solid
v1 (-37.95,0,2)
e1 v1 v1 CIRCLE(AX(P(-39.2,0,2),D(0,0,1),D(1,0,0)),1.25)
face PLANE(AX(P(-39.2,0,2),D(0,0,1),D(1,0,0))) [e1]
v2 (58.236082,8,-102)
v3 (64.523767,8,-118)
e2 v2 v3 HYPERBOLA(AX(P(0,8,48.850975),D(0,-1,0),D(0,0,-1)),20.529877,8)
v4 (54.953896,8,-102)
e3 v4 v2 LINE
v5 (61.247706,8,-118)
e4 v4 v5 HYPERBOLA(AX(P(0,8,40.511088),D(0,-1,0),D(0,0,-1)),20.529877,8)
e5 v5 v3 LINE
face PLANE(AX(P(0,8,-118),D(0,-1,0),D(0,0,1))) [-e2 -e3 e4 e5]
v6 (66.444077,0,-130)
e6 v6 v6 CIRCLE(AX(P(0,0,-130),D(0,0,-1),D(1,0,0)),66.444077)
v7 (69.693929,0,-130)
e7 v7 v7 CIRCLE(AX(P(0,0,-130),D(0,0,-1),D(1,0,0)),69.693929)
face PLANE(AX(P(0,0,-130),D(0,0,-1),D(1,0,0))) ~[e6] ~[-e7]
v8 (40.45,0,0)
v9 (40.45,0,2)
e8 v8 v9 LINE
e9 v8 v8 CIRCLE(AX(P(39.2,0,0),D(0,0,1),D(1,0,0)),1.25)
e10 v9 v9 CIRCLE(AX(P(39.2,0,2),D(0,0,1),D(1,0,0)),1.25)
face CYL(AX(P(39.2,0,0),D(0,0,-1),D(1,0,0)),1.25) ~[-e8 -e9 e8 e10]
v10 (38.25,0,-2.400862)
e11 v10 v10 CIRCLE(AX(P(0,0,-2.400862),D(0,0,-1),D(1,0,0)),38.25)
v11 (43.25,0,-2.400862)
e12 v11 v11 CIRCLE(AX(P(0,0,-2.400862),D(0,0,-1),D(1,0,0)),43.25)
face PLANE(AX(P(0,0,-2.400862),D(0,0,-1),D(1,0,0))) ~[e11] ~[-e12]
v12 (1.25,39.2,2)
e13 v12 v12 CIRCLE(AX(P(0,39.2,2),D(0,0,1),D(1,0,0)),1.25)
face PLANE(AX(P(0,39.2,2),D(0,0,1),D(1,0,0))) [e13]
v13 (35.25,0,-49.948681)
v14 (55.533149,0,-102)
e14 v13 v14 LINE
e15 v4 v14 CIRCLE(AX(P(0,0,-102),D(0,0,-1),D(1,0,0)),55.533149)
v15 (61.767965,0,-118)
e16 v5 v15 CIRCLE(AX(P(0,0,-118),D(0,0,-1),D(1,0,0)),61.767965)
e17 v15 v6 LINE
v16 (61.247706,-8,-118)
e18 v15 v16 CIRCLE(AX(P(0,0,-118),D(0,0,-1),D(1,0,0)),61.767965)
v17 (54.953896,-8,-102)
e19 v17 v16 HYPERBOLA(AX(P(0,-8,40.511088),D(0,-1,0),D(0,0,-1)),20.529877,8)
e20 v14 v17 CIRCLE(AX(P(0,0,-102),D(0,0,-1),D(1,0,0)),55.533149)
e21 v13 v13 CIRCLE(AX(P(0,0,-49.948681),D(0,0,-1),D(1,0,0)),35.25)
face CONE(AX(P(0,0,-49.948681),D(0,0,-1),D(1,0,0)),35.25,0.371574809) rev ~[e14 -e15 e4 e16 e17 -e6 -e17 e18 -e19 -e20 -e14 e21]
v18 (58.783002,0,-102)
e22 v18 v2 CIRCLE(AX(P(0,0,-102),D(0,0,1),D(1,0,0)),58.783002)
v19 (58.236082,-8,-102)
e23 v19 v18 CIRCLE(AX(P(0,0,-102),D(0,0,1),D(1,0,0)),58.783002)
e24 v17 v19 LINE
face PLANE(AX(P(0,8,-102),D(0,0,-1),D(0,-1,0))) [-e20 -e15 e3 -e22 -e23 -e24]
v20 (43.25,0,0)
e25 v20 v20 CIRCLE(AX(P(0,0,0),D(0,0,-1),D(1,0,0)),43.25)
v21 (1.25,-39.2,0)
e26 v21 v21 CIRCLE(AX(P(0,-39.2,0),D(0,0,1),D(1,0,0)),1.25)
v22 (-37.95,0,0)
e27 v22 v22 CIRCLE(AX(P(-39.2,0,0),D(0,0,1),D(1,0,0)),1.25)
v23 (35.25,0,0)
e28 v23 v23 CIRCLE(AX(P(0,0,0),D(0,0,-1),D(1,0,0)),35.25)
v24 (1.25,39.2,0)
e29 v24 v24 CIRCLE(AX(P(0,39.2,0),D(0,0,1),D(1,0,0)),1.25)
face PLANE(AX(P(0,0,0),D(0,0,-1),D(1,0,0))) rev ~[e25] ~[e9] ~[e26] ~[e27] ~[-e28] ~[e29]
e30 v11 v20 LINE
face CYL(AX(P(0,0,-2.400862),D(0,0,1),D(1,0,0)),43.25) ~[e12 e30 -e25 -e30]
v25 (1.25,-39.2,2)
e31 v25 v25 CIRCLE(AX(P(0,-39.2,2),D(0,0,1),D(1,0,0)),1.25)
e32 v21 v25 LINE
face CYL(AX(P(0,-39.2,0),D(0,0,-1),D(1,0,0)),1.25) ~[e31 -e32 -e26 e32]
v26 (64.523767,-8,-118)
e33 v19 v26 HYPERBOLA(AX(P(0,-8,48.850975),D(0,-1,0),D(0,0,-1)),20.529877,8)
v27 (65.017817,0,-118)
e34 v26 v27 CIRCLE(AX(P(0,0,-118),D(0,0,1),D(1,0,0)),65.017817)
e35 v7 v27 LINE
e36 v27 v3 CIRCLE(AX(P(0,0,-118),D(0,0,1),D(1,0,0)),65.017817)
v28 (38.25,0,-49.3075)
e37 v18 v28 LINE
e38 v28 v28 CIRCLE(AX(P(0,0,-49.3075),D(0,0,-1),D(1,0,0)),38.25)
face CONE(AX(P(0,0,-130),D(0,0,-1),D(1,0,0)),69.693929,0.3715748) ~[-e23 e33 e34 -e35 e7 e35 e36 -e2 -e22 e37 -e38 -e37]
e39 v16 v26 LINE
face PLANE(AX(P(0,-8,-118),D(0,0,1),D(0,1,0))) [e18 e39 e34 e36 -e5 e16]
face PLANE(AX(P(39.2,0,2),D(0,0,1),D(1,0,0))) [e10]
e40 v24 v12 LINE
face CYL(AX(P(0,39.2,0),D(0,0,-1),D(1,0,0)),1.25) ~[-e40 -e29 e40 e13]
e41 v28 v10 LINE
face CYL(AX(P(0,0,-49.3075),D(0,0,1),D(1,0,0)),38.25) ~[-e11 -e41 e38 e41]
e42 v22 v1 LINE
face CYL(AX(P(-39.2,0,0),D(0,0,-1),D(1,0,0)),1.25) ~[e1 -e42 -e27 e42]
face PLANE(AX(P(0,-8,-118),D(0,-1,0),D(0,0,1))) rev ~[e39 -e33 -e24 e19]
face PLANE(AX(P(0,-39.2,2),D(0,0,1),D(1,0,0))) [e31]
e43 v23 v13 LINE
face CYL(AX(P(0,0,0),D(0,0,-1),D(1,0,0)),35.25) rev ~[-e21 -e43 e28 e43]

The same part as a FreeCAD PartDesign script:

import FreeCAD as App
import Part
import Sketcher
from FreeCAD import Vector
Q = App.Units.Quantity

doc = App.newDocument("Part")
body = doc.addObject("PartDesign::Body", "Body")

# Sketch on XZ plane
sketch1 = body.newObject("Sketcher::SketchObject", "Sketch")
sketch1.AttachmentSupport = (doc.getObject("XZ_Plane"), [""])
sketch1.MapMode = "FlatFace"
sketch1.addGeometry(Part.LineSegment(Vector(43.25, 0, 0), Vector(35.25, 0, 0)), False)
sketch1.addGeometry(Part.LineSegment(Vector(35.25, 0, 0), Vector(35.25, -49.948681, 0)), False)
sketch1.addGeometry(Part.LineSegment(Vector(35.25, -49.948681, 0), Vector(66.444077, -130, 0)), False)
sketch1.addGeometry(Part.LineSegment(Vector(66.444077, -130, 0), Vector(69.693929, -130, 0)), False)
sketch1.addGeometry(Part.LineSegment(Vector(69.693929, -130, 0), Vector(38.25, -49.3075, 0)), False)
sketch1.addGeometry(Part.LineSegment(Vector(38.25, -49.3075, 0), Vector(38.25, -2.400862, 0)), False)
sketch1.addGeometry(Part.LineSegment(Vector(38.25, -2.400862, 0), Vector(43.25, -2.400862, 0)), False)
sketch1.addGeometry(Part.LineSegment(Vector(43.25, -2.400862, 0), Vector(43.25, 0, 0)), False)
sketch1.addConstraint(Sketcher.Constraint("Coincident", 0, 2, 1, 1))
sketch1.addConstraint(Sketcher.Constraint("Coincident", 1, 2, 2, 1))
sketch1.addConstraint(Sketcher.Constraint("Coincident", 2, 2, 3, 1))
sketch1.addConstraint(Sketcher.Constraint("Coincident", 3, 2, 4, 1))
sketch1.addConstraint(Sketcher.Constraint("Coincident", 4, 2, 5, 1))
sketch1.addConstraint(Sketcher.Constraint("Coincident", 5, 2, 6, 1))
sketch1.addConstraint(Sketcher.Constraint("Coincident", 6, 2, 7, 1))
sketch1.addConstraint(Sketcher.Constraint("Coincident", 7, 2, 0, 1))
sketch1.addConstraint(Sketcher.Constraint("Horizontal", 0))
sketch1.addConstraint(Sketcher.Constraint("Vertical", 1))
sketch1.addConstraint(Sketcher.Constraint("Horizontal", 3))
sketch1.addConstraint(Sketcher.Constraint("Vertical", 5))
sketch1.addConstraint(Sketcher.Constraint("Horizontal", 6))
sketch1.addConstraint(Sketcher.Constraint("Vertical", 7))
sketch1.addConstraint(Sketcher.Constraint("PointOnObject", 0, 2, -1))
sketch1.addConstraint(Sketcher.Constraint("Parallel", 2, 4))
sketch1.addConstraint(Sketcher.Constraint("DistanceX", 0, 2, 0, 1, Q("8 mm")))
sketch1.addConstraint(Sketcher.Constraint("DistanceX", 6, 1, 6, 2, Q("5 mm")))
sketch1.addConstraint(Sketcher.Constraint("DistanceY", 2, 2, -1, 1, Q("130 mm")))
sketch1.addConstraint(Sketcher.Constraint("DistanceX", -1, 1, 0, 2, Q("35.25 mm")))
sketch1.addConstraint(Sketcher.Constraint("Distance", 2, Q("85.9144 mm")))
sketch1.addConstraint(Sketcher.Constraint("DistanceY", 1, 2, 1, 1, Q("49.948681 mm")))
sketch1.addConstraint(Sketcher.Constraint("DistanceY", 7, 1, 7, 2, Q("2.400862 mm")))
sketch1.addConstraint(Sketcher.Constraint("DistanceY", 4, 2, -1, 1, Q("49.3075 mm")))
revolution = body.newObject("PartDesign::Revolution", "Revolution")
revolution.Profile = sketch1
revolution.ReferenceAxis = (sketch1, ["V_Axis"])
revolution.Angle = 360

# Sketch on YZ plane
sketch2 = body.newObject("Sketcher::SketchObject", "Sketch001")
sketch2.AttachmentSupport = (doc.getObject("YZ_Plane"), [""])
sketch2.MapMode = "FlatFace"
sketch2.addGeometry(Part.LineSegment(Vector(-8, -102, 0), Vector(-8, -118, 0)), False)
sketch2.addGeometry(Part.LineSegment(Vector(-8, -118, 0), Vector(8, -118, 0)), False)
sketch2.addGeometry(Part.LineSegment(Vector(8, -118, 0), Vector(8, -102, 0)), False)
sketch2.addGeometry(Part.LineSegment(Vector(8, -102, 0), Vector(-8, -102, 0)), False)
sketch2.addConstraint(Sketcher.Constraint("Coincident", 0, 2, 1, 1))
sketch2.addConstraint(Sketcher.Constraint("Coincident", 1, 2, 2, 1))
sketch2.addConstraint(Sketcher.Constraint("Coincident", 2, 2, 3, 1))
sketch2.addConstraint(Sketcher.Constraint("Coincident", 3, 2, 0, 1))
sketch2.addConstraint(Sketcher.Constraint("Vertical", 0))
sketch2.addConstraint(Sketcher.Constraint("Horizontal", 1))
sketch2.addConstraint(Sketcher.Constraint("Vertical", 2))
sketch2.addConstraint(Sketcher.Constraint("Horizontal", 3))
sketch2.addConstraint(Sketcher.Constraint("Equal", 3, 0))
sketch2.addConstraint(Sketcher.Constraint("DistanceX", 1, 1, 1, 2, Q("16 mm")))
sketch2.addConstraint(Sketcher.Constraint("DistanceX", 0, 2, -1, 1, Q("8 mm")))
sketch2.addConstraint(Sketcher.Constraint("DistanceY", 0, 2, -1, 1, Q("118 mm")))
pocket1 = body.newObject("PartDesign::Pocket", "Pocket")
pocket1.Profile = sketch2
pocket1.Length = 77.17437
pocket1.Reversed = True

# Sketch on XY plane
sketch3 = body.newObject("Sketcher::SketchObject", "Sketch002")
sketch3.AttachmentSupport = (doc.getObject("XY_Plane"), [""])
sketch3.MapMode = "FlatFace"
sketch3.addGeometry(Part.Circle(Vector(0, 39.2, 0), Vector(0, 0, 1), 1.25), False)
sketch3.addGeometry(Part.Circle(Vector(-39.2, 0, 0), Vector(0, 0, 1), 1.25), False)
sketch3.addGeometry(Part.Circle(Vector(0, -39.2, 0), Vector(0, 0, 1), 1.25), False)
sketch3.addGeometry(Part.Circle(Vector(39.2, 0, 0), Vector(0, 0, 1), 1.25), False)
sketch3.addConstraint(Sketcher.Constraint("Equal", 0, 1))
sketch3.addConstraint(Sketcher.Constraint("Equal", 1, 2))
sketch3.addConstraint(Sketcher.Constraint("Equal", 2, 3))
sketch3.addConstraint(Sketcher.Constraint("Symmetric", 0, 3, 2, 3, -1, 1))
sketch3.addConstraint(Sketcher.Constraint("Symmetric", 1, 3, 3, 3, -1, 1))
sketch3.addConstraint(Sketcher.Constraint("PointOnObject", 0, 3, -2))
sketch3.addConstraint(Sketcher.Constraint("PointOnObject", 1, 3, -1))
sketch3.addConstraint(Sketcher.Constraint("Diameter", 0, Q("2.5 mm")))
sketch3.addConstraint(Sketcher.Constraint("DistanceY", -1, 1, 0, 3, Q("39.2 mm")))
sketch3.addConstraint(Sketcher.Constraint("DistanceX", 1, 3, -1, 1, Q("39.2 mm")))
pad1 = body.newObject("PartDesign::Pad", "Pad")
pad1.Profile = sketch3
pad1.Length = 2

doc.recompute()
